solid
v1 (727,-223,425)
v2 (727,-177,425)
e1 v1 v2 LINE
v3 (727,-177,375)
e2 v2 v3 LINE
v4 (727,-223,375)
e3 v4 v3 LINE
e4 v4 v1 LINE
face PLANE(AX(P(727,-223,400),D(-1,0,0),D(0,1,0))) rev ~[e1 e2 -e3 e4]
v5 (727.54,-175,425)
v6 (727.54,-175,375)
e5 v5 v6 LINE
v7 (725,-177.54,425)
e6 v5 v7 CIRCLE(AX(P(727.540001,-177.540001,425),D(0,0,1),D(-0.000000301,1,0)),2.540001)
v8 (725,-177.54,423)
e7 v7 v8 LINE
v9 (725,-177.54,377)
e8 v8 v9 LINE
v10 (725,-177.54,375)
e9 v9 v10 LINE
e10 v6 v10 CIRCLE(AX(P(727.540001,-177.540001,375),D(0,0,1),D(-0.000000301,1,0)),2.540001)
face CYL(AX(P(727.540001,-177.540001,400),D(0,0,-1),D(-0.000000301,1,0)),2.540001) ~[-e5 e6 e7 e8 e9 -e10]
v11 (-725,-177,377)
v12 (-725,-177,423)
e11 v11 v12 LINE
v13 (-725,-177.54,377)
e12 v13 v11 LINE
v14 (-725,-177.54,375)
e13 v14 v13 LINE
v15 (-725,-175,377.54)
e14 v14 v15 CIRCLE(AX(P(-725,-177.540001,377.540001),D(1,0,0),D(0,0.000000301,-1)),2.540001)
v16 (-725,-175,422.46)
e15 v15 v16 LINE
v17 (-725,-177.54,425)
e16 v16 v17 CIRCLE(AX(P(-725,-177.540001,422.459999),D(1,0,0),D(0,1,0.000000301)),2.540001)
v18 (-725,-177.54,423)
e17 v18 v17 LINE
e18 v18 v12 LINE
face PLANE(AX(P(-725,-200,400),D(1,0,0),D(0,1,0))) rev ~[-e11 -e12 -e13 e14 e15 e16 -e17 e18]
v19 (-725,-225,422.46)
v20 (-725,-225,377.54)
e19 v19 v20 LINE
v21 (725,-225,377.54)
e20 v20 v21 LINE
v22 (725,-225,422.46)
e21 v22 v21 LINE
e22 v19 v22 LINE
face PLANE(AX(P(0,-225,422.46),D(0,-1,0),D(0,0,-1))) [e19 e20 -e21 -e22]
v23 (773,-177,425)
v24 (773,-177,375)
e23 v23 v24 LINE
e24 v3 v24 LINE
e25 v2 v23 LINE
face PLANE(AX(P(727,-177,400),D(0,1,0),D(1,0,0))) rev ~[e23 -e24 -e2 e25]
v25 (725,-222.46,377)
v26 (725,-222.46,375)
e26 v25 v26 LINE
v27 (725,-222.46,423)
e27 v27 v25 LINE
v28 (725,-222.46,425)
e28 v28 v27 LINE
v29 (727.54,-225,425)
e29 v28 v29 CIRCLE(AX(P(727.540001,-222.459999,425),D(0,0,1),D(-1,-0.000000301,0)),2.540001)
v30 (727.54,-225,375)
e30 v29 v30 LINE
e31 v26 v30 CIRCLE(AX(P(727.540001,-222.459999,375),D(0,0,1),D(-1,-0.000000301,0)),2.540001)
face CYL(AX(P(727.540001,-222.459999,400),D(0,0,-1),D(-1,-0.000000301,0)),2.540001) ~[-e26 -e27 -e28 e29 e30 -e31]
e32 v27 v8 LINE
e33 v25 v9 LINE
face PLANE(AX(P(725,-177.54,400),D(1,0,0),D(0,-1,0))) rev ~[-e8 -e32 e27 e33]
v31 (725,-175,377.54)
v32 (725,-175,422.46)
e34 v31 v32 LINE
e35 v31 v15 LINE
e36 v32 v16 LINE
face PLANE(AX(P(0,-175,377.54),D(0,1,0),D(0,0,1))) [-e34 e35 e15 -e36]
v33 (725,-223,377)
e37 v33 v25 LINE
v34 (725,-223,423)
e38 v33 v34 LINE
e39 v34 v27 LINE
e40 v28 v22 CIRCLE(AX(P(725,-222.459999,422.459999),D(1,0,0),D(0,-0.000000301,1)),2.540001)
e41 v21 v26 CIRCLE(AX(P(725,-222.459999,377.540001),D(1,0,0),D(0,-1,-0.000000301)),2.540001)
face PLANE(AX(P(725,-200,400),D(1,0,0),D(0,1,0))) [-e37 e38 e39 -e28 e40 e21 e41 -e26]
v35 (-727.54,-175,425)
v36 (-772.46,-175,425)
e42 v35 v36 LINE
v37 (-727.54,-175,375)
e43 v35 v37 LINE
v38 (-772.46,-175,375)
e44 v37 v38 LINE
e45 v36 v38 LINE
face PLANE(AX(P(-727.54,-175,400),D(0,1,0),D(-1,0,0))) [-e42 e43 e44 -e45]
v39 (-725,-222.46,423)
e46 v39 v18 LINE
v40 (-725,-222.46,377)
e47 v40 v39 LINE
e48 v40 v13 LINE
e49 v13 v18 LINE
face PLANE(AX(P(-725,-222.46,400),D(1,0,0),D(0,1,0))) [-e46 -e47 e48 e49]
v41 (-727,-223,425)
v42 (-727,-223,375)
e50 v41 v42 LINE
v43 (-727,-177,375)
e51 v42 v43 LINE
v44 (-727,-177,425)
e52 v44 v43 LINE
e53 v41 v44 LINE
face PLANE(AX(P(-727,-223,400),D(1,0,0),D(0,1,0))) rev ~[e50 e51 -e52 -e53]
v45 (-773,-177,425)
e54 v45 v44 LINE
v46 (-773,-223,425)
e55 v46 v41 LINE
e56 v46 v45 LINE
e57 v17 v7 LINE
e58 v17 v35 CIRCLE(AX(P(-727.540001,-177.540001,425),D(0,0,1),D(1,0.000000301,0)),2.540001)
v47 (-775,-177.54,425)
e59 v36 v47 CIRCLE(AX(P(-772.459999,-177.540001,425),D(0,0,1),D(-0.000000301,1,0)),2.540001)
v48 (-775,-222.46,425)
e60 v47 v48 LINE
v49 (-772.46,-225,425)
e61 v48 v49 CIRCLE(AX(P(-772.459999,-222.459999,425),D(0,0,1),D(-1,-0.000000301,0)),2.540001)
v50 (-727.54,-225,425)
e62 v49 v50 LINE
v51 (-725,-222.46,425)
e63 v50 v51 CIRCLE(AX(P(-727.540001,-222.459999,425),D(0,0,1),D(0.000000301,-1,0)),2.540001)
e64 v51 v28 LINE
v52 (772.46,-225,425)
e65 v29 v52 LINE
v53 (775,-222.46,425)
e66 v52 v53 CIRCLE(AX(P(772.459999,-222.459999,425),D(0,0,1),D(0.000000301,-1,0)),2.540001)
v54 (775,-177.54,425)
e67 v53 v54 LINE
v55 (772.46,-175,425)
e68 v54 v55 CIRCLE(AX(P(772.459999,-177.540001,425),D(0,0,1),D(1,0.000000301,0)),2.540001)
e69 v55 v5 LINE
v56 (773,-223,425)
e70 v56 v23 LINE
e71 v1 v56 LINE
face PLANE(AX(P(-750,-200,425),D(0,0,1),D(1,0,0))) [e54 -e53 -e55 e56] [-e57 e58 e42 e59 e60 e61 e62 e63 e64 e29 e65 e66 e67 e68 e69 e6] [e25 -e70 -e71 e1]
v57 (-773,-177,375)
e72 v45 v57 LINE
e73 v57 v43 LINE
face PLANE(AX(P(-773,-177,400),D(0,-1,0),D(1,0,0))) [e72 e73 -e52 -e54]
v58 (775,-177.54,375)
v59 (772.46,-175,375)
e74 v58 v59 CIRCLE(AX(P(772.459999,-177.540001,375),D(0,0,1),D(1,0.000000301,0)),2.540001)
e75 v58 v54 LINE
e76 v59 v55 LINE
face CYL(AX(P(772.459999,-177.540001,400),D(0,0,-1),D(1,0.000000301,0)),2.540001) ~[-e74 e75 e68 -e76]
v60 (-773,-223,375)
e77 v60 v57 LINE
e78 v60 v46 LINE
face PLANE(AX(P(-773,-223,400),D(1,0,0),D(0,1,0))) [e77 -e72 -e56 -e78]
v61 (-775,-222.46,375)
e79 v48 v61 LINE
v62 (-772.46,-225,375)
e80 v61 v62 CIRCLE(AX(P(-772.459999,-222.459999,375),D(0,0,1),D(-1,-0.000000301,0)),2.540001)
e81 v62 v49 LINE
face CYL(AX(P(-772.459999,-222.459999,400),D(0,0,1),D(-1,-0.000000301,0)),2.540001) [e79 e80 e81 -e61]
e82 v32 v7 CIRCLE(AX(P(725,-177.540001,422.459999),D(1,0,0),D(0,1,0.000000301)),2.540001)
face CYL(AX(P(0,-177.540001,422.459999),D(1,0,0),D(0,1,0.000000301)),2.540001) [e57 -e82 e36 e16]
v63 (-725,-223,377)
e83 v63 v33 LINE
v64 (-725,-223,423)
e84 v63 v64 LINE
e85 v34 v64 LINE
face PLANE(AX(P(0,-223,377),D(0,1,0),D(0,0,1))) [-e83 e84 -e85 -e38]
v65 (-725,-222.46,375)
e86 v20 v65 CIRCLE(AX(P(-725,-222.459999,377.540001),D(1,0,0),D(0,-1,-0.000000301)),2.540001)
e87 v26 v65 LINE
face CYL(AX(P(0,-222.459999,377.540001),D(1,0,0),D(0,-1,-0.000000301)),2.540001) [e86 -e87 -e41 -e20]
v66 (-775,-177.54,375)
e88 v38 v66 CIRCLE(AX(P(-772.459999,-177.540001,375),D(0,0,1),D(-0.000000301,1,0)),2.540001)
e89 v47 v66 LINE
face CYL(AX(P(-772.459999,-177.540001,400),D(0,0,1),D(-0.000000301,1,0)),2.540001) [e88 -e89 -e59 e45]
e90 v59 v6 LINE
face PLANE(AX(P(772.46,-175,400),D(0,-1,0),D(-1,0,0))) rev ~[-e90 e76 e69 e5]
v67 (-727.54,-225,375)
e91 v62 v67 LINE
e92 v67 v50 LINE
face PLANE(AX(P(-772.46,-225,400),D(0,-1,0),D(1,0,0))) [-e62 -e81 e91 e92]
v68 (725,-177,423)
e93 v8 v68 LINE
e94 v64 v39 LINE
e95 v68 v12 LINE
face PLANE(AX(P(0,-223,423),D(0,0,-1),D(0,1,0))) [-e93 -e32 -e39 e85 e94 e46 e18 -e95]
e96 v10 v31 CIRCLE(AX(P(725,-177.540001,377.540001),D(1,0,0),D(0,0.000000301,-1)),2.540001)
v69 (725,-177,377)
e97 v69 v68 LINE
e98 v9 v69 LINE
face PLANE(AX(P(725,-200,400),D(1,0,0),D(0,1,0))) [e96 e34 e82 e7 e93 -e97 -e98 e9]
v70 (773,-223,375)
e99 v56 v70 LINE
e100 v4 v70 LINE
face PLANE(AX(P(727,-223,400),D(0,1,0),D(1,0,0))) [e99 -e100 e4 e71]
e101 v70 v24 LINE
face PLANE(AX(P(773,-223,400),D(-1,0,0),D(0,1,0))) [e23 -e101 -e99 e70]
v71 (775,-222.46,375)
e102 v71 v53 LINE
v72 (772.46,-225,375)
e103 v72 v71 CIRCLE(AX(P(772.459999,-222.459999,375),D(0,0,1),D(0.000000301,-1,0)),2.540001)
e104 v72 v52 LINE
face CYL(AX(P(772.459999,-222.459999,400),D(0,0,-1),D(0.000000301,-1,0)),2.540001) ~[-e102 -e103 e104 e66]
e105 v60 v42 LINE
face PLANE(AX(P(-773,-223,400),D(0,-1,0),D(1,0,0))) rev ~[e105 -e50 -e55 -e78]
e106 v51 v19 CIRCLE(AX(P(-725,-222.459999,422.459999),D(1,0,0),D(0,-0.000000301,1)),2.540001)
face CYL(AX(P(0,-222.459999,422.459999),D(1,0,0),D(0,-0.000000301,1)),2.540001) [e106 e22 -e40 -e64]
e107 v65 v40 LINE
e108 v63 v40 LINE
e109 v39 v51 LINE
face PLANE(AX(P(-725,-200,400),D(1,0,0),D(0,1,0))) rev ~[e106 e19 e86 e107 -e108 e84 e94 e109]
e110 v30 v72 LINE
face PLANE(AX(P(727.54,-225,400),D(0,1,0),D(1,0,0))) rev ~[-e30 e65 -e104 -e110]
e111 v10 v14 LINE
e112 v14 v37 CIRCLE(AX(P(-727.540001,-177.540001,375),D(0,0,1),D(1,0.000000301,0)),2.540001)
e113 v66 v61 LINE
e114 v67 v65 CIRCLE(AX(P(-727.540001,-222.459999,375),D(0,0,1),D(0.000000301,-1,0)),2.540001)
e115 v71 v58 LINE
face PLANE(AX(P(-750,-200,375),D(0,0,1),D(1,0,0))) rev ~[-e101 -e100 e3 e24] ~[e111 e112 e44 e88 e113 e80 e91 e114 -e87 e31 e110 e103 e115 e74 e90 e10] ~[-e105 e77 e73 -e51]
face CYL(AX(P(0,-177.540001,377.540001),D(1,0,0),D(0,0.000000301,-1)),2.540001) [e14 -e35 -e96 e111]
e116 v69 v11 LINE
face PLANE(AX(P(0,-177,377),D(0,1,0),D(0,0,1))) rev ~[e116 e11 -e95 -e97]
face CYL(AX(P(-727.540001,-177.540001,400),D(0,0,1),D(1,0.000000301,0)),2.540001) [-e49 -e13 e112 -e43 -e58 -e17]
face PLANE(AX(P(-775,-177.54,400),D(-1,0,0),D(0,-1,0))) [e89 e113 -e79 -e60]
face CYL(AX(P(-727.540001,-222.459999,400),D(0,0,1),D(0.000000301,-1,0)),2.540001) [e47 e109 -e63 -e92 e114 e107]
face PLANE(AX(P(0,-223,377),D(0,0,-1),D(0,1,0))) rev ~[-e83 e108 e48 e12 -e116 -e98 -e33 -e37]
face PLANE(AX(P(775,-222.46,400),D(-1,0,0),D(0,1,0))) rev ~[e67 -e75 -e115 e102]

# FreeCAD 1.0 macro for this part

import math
import FreeCAD as App
import Part
import Sketcher
Q = App.Units.Quantity

doc = App.newDocument("Part")
body = doc.addObject("PartDesign::Body", "Body")

# Sketch on YZ plane
sketch1 = body.newObject("Sketcher::SketchObject", "Sketch")
sketch1.AttachmentSupport = (doc.getObject("YZ_Plane"), [""])
sketch1.MapMode = "FlatFace"
sketch1.addGeometry([
    Part.ArcOfCircle(Part.Circle(App.Vector(-177.5, 422.5, 0), App.Vector(0, 0, 1), 2.5), math.radians(0), math.radians(90)),  # 0
    Part.LineSegment(App.Vector(-177.5, 425, 0), App.Vector(-222.5, 425, 0)),  # 1
    Part.ArcOfCircle(Part.Circle(App.Vector(-222.5, 422.5, 0), App.Vector(0, 0, 1), 2.5), math.radians(90), math.radians(180)),  # 2
    Part.LineSegment(App.Vector(-225, 422.5, 0), App.Vector(-225, 377.5, 0)),  # 3
    Part.ArcOfCircle(Part.Circle(App.Vector(-222.5, 377.5, 0), App.Vector(0, 0, 1), 2.5), math.radians(-180), math.radians(-90)),  # 4
    Part.LineSegment(App.Vector(-222.5, 375, 0), App.Vector(-177.5, 375, 0)),  # 5
    Part.ArcOfCircle(Part.Circle(App.Vector(-177.5, 377.5, 0), App.Vector(0, 0, 1), 2.5), math.radians(-90), math.radians(0)),  # 6
    Part.LineSegment(App.Vector(-175, 377.5, 0), App.Vector(-175, 422.5, 0)),  # 7
    Part.LineSegment(App.Vector(-177, 377, 0), App.Vector(-223, 377, 0)),  # 8
    Part.LineSegment(App.Vector(-223, 377, 0), App.Vector(-223, 423, 0)),  # 9
    Part.LineSegment(App.Vector(-223, 423, 0), App.Vector(-177, 423, 0)),  # 10
    Part.LineSegment(App.Vector(-177, 423, 0), App.Vector(-177, 377, 0)),  # 11
], False)
sketch1.addConstraint([
    Sketcher.Constraint("Tangent", 0, 2, 1, 1),
    Sketcher.Constraint("Tangent", 1, 2, 2, 1),
    Sketcher.Constraint("Tangent", 2, 2, 3, 1),
    Sketcher.Constraint("Tangent", 3, 2, 4, 1),
    Sketcher.Constraint("Tangent", 4, 2, 5, 1),
    Sketcher.Constraint("Tangent", 5, 2, 6, 1),
    Sketcher.Constraint("Tangent", 6, 2, 7, 1),
    Sketcher.Constraint("Tangent", 7, 2, 0, 1),
    Sketcher.Constraint("Coincident", 8, 2, 9, 1),
    Sketcher.Constraint("Coincident", 9, 2, 10, 1),
    Sketcher.Constraint("Coincident", 10, 2, 11, 1),
    Sketcher.Constraint("Coincident", 11, 2, 8, 1),
    Sketcher.Constraint("Horizontal", 1),
    Sketcher.Constraint("Vertical", 3),
    Sketcher.Constraint("Horizontal", 5),
    Sketcher.Constraint("Vertical", 7),
    Sketcher.Constraint("Horizontal", 8),
    Sketcher.Constraint("Vertical", 9),
    Sketcher.Constraint("Horizontal", 10),
    Sketcher.Constraint("Vertical", 11),
    Sketcher.Constraint("Equal", 0, 2),
    Sketcher.Constraint("Equal", 2, 4),
    Sketcher.Constraint("Equal", 4, 6),
    Sketcher.Constraint("Equal", 5, 3),
    Sketcher.Constraint("Equal", 10, 9),
    Sketcher.Constraint("DistanceX", 8, 2, 8, 1, Q("46 mm")),
    Sketcher.Constraint("Radius", 0, Q("2.540001 mm")),
    Sketcher.Constraint("DistanceY", -1, 1, 0, 2, Q("425 mm")),
    Sketcher.Constraint("DistanceX", 2, 2, -1, 1, Q("225 mm")),
    Sketcher.Constraint("DistanceY", -1, 1, 4, 2, Q("375 mm")),
    Sketcher.Constraint("DistanceX", 8, 2, -1, 1, Q("223 mm")),
    Sketcher.Constraint("DistanceY", -1, 1, 8, 2, Q("377 mm")),
])
pad1 = body.newObject("PartDesign::Pad", "Pad")
pad1.Profile = sketch1
pad1.Length = 1450
pad1.Midplane = True

# Sketch on XY plane
sketch2 = body.newObject("Sketcher::SketchObject", "Sketch001")
sketch2.AttachmentSupport = (doc.getObject("XY_Plane"), [""])
sketch2.MapMode = "FlatFace"
sketch2.AttachmentOffset = App.Placement(App.Vector(0, 0, 400), App.Rotation())
sketch2.addGeometry([
    Part.LineSegment(App.Vector(727.5, -225, 0), App.Vector(772.5, -225, 0)),  # 0
    Part.ArcOfCircle(Part.Circle(App.Vector(772.5, -222.5, 0), App.Vector(0, 0, 1), 2.5), math.radians(-90), math.radians(0)),  # 1
    Part.LineSegment(App.Vector(775, -222.5, 0), App.Vector(775, -177.5, 0)),  # 2
    Part.ArcOfCircle(Part.Circle(App.Vector(772.5, -177.5, 0), App.Vector(0, 0, 1), 2.5), math.radians(0), math.radians(90)),  # 3
    Part.LineSegment(App.Vector(772.5, -175, 0), App.Vector(727.5, -175, 0)),  # 4
    Part.ArcOfCircle(Part.Circle(App.Vector(727.5, -177.5, 0), App.Vector(0, 0, 1), 2.5), math.radians(90), math.radians(180)),  # 5
    Part.LineSegment(App.Vector(725, -177.5, 0), App.Vector(725, -222.5, 0)),  # 6
    Part.ArcOfCircle(Part.Circle(App.Vector(727.5, -222.5, 0), App.Vector(0, 0, 1), 2.5), math.radians(-180), math.radians(-90)),  # 7
    Part.LineSegment(App.Vector(773, -223, 0), App.Vector(727, -223, 0)),  # 8
    Part.LineSegment(App.Vector(727, -223, 0), App.Vector(727, -177, 0)),  # 9
    Part.LineSegment(App.Vector(727, -177, 0), App.Vector(773, -177, 0)),  # 10
    Part.LineSegment(App.Vector(773, -177, 0), App.Vector(773, -223, 0)),  # 11
    Part.ArcOfCircle(Part.Circle(App.Vector(-772.5, -222.5, 0), App.Vector(0, 0, 1), 2.5), math.radians(-180), math.radians(-90)),  # 12
    Part.LineSegment(App.Vector(-772.5, -225, 0), App.Vector(-727.5, -225, 0)),  # 13
    Part.ArcOfCircle(Part.Circle(App.Vector(-727.5, -222.5, 0), App.Vector(0, 0, 1), 2.5), math.radians(-90), math.radians(0)),  # 14
    Part.LineSegment(App.Vector(-725, -222.5, 0), App.Vector(-725, -177.5, 0)),  # 15
    Part.ArcOfCircle(Part.Circle(App.Vector(-727.5, -177.5, 0), App.Vector(0, 0, 1), 2.5), math.radians(0), math.radians(90)),  # 16
    Part.LineSegment(App.Vector(-727.5, -175, 0), App.Vector(-772.5, -175, 0)),  # 17
    Part.ArcOfCircle(Part.Circle(App.Vector(-772.5, -177.5, 0), App.Vector(0, 0, 1), 2.5), math.radians(90), math.radians(180)),  # 18
    Part.LineSegment(App.Vector(-775, -177.5, 0), App.Vector(-775, -222.5, 0)),  # 19
    Part.LineSegment(App.Vector(-727, -223, 0), App.Vector(-773, -223, 0)),  # 20
    Part.LineSegment(App.Vector(-773, -223, 0), App.Vector(-773, -177, 0)),  # 21
    Part.LineSegment(App.Vector(-773, -177, 0), App.Vector(-727, -177, 0)),  # 22
    Part.LineSegment(App.Vector(-727, -177, 0), App.Vector(-727, -223, 0)),  # 23
], False)
sketch2.addConstraint([
    Sketcher.Constraint("Tangent", 0, 2, 1, 1),
    Sketcher.Constraint("Tangent", 1, 2, 2, 1),
    Sketcher.Constraint("Tangent", 2, 2, 3, 1),
    Sketcher.Constraint("Tangent", 3, 2, 4, 1),
    Sketcher.Constraint("Tangent", 4, 2, 5, 1),
    Sketcher.Constraint("Tangent", 5, 2, 6, 1),
    Sketcher.Constraint("Tangent", 6, 2, 7, 1),
    Sketcher.Constraint("Tangent", 7, 2, 0, 1),
    Sketcher.Constraint("Coincident", 8, 2, 9, 1),
    Sketcher.Constraint("Coincident", 9, 2, 10, 1),
    Sketcher.Constraint("Coincident", 10, 2, 11, 1),
    Sketcher.Constraint("Coincident", 11, 2, 8, 1),
    Sketcher.Constraint("Tangent", 12, 2, 13, 1),
    Sketcher.Constraint("Tangent", 13, 2, 14, 1),
    Sketcher.Constraint("Tangent", 14, 2, 15, 1),
    Sketcher.Constraint("Tangent", 15, 2, 16, 1),
    Sketcher.Constraint("Tangent", 16, 2, 17, 1),
    Sketcher.Constraint("Tangent", 17, 2, 18, 1),
    Sketcher.Constraint("Tangent", 18, 2, 19, 1),
    Sketcher.Constraint("Tangent", 19, 2, 12, 1),
    Sketcher.Constraint("Coincident", 20, 2, 21, 1),
    Sketcher.Constraint("Coincident", 21, 2, 22, 1),
    Sketcher.Constraint("Coincident", 22, 2, 23, 1),
    Sketcher.Constraint("Coincident", 23, 2, 20, 1),
    Sketcher.Constraint("Horizontal", 0),
    Sketcher.Constraint("Vertical", 2),
    Sketcher.Constraint("Horizontal", 4),
    Sketcher.Constraint("Vertical", 6),
    Sketcher.Constraint("Horizontal", 8),
    Sketcher.Constraint("Vertical", 9),
    Sketcher.Constraint("Horizontal", 10),
    Sketcher.Constraint("Vertical", 11),
    Sketcher.Constraint("Horizontal", 13),
    Sketcher.Constraint("Vertical", 15),
    Sketcher.Constraint("Horizontal", 17),
    Sketcher.Constraint("Vertical", 19),
    Sketcher.Constraint("Horizontal", 20),
    Sketcher.Constraint("Vertical", 21),
    Sketcher.Constraint("Horizontal", 22),
    Sketcher.Constraint("Vertical", 23),
    Sketcher.Constraint("Equal", 1, 3),
    Sketcher.Constraint("Equal", 3, 5),
    Sketcher.Constraint("Equal", 5, 7),
    Sketcher.Constraint("Equal", 7, 12),
    Sketcher.Constraint("Equal", 12, 14),
    Sketcher.Constraint("Equal", 14, 16),
    Sketcher.Constraint("Equal", 16, 18),
    Sketcher.Constraint("Symmetric", 1, 3, 12, 3, -2),
    Sketcher.Constraint("Symmetric", 5, 3, 16, 3, -2),
    Sketcher.Constraint("Symmetric", 11, 2, 20, 2, -2),
    Sketcher.Constraint("Symmetric", 9, 2, 22, 2, -2),
    Sketcher.Constraint("Equal", 17, 2),
    Sketcher.Constraint("Equal", 22, 9),
    Sketcher.Constraint("DistanceX", 8, 2, 8, 1, Q("46 mm")),
    Sketcher.Constraint("Radius", 1, Q("2.540001 mm")),
    Sketcher.Constraint("DistanceY", 0, 2, -1, 1, Q("225 mm")),
    Sketcher.Constraint("DistanceX", -1, 1, 1, 2, Q("775 mm")),
    Sketcher.Constraint("DistanceY", 3, 2, -1, 1, Q("175 mm")),
    Sketcher.Constraint("DistanceX", -1, 1, 8, 2, Q("727 mm")),
    Sketcher.Constraint("DistanceY", 8, 2, -1, 1, Q("223 mm")),
])
pad2 = body.newObject("PartDesign::Pad", "Pad001")
pad2.Profile = sketch2
pad2.Length = 50
pad2.Midplane = True

doc.recompute()
